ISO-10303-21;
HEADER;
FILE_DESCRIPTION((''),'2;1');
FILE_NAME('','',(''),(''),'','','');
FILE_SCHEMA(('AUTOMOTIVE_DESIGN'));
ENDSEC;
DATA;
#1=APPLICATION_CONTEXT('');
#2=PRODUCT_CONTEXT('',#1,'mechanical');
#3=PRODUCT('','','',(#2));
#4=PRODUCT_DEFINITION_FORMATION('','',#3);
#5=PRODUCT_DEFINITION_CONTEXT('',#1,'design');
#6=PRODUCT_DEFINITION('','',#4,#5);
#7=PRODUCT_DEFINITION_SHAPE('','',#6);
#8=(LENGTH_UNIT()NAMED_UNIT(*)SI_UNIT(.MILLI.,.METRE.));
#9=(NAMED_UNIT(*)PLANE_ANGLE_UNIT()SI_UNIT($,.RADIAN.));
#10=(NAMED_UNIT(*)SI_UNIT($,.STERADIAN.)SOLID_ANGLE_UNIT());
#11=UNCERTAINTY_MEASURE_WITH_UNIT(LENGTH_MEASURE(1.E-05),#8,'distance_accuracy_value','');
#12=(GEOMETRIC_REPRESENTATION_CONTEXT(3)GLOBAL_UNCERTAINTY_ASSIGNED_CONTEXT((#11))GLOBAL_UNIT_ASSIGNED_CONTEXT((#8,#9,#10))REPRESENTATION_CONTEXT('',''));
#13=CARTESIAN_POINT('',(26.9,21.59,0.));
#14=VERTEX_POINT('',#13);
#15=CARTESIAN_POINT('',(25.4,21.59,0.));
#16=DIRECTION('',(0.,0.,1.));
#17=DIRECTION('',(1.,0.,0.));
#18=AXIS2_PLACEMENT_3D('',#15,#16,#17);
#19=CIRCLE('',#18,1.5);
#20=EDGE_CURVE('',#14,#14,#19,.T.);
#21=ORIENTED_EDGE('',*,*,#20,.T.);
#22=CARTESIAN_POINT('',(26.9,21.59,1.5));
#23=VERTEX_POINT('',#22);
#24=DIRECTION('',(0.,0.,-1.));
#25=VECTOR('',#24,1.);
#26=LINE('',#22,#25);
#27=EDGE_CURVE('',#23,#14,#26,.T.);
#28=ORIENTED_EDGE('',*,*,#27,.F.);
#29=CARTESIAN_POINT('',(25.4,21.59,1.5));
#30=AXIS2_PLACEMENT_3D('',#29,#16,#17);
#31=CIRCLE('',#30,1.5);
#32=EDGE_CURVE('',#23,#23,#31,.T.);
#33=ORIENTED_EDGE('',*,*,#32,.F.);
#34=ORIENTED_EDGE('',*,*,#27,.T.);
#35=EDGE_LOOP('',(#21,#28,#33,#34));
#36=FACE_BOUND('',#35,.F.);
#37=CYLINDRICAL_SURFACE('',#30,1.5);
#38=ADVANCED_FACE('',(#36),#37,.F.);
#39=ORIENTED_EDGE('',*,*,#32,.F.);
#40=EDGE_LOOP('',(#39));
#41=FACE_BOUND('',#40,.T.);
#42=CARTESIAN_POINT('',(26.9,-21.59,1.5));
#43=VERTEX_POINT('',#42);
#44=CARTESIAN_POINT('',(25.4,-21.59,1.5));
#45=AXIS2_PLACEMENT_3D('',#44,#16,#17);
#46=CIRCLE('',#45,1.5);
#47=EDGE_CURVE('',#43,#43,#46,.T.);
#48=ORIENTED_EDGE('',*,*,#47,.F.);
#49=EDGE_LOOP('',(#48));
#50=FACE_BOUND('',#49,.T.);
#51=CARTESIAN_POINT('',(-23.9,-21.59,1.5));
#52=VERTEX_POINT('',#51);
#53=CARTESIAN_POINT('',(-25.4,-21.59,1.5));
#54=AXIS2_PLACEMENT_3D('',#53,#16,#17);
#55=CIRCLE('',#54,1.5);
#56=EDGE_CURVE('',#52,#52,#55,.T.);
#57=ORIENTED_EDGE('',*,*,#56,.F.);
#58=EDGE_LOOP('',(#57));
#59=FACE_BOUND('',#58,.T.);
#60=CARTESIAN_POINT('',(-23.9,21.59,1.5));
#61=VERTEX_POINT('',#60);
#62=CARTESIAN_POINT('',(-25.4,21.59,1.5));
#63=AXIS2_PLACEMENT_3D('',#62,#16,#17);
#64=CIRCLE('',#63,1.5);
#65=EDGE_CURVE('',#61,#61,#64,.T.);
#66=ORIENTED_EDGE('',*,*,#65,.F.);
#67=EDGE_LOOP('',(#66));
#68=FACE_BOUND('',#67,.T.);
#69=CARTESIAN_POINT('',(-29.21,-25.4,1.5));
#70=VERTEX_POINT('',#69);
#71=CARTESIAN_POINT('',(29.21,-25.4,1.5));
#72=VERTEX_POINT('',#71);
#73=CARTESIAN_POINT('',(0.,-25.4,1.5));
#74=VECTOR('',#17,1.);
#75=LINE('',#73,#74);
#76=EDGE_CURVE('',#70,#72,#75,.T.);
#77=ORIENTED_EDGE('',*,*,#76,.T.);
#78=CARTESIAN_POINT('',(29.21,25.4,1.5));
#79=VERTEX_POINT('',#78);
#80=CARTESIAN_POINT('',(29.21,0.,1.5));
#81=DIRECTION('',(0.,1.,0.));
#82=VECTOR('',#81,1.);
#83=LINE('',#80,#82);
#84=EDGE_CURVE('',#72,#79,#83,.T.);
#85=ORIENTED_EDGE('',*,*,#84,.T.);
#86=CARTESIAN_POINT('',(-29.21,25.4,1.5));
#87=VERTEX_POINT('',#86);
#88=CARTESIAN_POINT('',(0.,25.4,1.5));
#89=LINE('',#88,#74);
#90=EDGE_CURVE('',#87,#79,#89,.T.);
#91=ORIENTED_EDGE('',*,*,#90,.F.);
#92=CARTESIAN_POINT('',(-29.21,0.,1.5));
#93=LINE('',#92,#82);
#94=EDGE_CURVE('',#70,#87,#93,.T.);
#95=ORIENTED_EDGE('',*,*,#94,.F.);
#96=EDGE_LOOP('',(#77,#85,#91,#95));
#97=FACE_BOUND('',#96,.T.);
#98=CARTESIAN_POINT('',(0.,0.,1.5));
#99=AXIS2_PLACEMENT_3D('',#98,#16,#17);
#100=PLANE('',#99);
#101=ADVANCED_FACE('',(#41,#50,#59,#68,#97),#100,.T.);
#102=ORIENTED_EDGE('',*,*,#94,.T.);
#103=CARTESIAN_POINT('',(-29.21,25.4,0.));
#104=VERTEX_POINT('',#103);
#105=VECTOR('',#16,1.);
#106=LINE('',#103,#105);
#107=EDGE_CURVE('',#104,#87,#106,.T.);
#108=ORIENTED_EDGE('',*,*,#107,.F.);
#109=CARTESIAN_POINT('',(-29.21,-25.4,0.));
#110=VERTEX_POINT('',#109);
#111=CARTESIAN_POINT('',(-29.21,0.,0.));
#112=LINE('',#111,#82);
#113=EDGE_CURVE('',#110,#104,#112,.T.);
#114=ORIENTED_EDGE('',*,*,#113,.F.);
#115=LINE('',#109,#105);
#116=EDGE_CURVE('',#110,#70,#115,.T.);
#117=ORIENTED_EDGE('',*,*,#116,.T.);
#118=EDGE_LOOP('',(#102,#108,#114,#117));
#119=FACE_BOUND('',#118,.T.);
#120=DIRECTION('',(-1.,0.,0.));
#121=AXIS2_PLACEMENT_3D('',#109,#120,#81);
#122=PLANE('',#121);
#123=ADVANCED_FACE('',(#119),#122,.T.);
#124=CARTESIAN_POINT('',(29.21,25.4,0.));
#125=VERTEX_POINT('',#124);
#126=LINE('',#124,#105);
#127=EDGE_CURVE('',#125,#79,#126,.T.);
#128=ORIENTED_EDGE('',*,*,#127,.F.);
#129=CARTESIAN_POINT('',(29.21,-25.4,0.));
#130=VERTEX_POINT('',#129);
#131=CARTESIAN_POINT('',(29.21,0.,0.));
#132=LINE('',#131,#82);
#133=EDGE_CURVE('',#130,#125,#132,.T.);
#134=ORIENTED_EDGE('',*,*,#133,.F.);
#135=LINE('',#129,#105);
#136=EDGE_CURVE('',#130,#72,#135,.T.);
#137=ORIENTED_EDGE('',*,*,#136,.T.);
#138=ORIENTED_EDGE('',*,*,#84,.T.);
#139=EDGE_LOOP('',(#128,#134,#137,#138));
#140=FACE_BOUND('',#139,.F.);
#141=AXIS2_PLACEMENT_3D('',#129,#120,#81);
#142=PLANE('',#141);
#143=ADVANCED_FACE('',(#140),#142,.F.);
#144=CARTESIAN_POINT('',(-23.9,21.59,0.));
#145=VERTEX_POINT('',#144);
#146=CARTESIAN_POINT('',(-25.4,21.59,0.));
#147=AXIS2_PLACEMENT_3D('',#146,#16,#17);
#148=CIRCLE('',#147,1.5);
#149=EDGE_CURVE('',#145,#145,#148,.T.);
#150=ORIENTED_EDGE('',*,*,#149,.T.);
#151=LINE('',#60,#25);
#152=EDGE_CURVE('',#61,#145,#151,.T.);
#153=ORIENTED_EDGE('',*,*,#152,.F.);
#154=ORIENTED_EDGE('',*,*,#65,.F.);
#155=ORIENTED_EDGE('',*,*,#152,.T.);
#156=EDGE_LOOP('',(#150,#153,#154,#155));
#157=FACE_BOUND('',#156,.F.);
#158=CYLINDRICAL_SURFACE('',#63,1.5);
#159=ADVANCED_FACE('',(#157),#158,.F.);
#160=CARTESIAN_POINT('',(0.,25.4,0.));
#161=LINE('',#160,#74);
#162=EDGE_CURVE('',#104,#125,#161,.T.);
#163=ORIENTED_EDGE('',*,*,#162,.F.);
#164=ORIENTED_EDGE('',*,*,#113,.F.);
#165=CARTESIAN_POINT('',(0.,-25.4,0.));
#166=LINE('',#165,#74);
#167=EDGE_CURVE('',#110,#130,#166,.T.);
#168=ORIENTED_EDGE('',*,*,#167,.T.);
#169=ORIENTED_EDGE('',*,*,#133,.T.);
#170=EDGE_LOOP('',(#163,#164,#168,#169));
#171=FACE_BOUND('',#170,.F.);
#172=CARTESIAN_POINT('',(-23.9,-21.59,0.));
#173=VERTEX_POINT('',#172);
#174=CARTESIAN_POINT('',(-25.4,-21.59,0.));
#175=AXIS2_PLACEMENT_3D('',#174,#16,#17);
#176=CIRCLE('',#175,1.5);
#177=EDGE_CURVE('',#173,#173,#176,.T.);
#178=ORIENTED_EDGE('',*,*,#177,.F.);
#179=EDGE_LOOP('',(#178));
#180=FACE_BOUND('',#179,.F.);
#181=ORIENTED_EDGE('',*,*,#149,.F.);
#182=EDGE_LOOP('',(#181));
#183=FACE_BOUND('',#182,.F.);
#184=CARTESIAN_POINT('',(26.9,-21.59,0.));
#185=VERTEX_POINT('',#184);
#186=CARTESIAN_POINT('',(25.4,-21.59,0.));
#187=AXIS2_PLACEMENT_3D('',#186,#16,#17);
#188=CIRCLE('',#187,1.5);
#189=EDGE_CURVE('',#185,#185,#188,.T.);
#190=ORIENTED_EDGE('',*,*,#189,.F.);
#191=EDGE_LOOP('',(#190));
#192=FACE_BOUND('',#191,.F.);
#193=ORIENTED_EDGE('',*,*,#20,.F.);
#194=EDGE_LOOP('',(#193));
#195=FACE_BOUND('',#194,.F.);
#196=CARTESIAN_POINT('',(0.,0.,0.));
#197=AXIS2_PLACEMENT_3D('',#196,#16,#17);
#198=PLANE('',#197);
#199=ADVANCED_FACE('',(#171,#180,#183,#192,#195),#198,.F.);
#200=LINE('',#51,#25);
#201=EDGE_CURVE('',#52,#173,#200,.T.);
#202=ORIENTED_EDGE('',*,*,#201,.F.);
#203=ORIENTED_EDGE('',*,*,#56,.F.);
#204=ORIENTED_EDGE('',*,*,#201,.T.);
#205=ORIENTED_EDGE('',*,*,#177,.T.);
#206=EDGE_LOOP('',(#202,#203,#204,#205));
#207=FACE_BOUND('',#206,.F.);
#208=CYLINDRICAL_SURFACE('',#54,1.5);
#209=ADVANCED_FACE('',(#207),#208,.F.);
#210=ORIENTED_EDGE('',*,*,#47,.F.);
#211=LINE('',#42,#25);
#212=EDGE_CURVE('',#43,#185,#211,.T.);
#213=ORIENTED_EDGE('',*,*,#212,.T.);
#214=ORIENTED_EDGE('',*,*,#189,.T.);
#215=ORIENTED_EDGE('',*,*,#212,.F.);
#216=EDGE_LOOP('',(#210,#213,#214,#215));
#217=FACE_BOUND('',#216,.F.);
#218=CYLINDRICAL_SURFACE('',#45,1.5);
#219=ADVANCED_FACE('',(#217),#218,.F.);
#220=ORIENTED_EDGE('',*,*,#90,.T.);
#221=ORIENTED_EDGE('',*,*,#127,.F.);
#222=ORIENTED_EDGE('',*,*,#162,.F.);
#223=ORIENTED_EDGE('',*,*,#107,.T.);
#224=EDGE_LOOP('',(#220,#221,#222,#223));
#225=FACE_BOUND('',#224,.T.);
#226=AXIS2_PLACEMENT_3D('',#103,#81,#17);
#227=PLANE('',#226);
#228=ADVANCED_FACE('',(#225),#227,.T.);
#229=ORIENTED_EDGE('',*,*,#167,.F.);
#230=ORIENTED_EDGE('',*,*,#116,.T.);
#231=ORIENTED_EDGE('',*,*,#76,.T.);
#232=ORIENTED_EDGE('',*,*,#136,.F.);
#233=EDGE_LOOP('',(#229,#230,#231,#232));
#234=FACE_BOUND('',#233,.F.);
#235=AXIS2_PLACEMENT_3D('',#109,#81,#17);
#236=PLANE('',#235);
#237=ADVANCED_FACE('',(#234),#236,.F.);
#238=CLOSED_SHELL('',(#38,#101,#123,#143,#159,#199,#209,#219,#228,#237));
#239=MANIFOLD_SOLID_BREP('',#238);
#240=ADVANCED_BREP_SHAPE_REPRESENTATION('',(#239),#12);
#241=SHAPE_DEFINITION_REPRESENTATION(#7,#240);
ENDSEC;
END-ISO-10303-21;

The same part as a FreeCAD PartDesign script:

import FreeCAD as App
import Part
import Sketcher

V = App.Vector
Q = App.Units.Quantity

doc = App.newDocument("Part")
body = doc.addObject("PartDesign::Body", "Body")

sketch1 = body.newObject("Sketcher::SketchObject", "Sketch")
sketch1.AttachmentSupport = (doc.getObject("XY_Plane"), [""])
sketch1.MapMode = "FlatFace"
sketch1.addGeometry(Part.LineSegment(V(-29.21, 25.4, 0), V(-29.21, -25.4, 0)), False)
sketch1.addGeometry(Part.LineSegment(V(-29.21, -25.4, 0), V(29.21, -25.4, 0)), False)
sketch1.addGeometry(Part.LineSegment(V(29.21, -25.4, 0), V(29.21, 25.4, 0)), False)
sketch1.addGeometry(Part.LineSegment(V(29.21, 25.4, 0), V(-29.21, 25.4, 0)), False)
sketch1.addConstraint(Sketcher.Constraint("Coincident", 0, 2, 1, 1))
sketch1.addConstraint(Sketcher.Constraint("Coincident", 1, 2, 2, 1))
sketch1.addConstraint(Sketcher.Constraint("Coincident", 2, 2, 3, 1))
sketch1.addConstraint(Sketcher.Constraint("Coincident", 3, 2, 0, 1))
sketch1.addConstraint(Sketcher.Constraint("Vertical", 0))
sketch1.addConstraint(Sketcher.Constraint("Horizontal", 1))
sketch1.addConstraint(Sketcher.Constraint("Vertical", 2))
sketch1.addConstraint(Sketcher.Constraint("Horizontal", 3))
sketch1.addConstraint(Sketcher.Constraint("Symmetric", 0, 2, 2, 2, -1, 1))
sketch1.addConstraint(Sketcher.Constraint("DistanceY", 0, 2, 0, 1, Q("50.8 mm")))
sketch1.addConstraint(Sketcher.Constraint("DistanceX", 1, 1, 1, 2, Q("58.42 mm")))
pad1 = body.newObject("PartDesign::Pad", "Pad")
pad1.Profile = sketch1
pad1.Length = 1.5

sketch2 = body.newObject("Sketcher::SketchObject", "Sketch001")
sketch2.AttachmentSupport = (doc.getObject("XY_Plane"), [""])
sketch2.MapMode = "FlatFace"
sketch2.AttachmentOffset = App.Placement(V(0, 0, 1.5), App.Rotation())
sketch2.addGeometry(Part.Circle(V(-25.4, 21.59, 0), V(0, 0, 1), 1.5), False)
sketch2.addGeometry(Part.Circle(V(25.4, 21.59, 0), V(0, 0, 1), 1.5), False)
sketch2.addGeometry(Part.Circle(V(25.4, -21.59, 0), V(0, 0, 1), 1.5), False)
sketch2.addGeometry(Part.Circle(V(-25.4, -21.59, 0), V(0, 0, 1), 1.5), False)
sketch2.addConstraint(Sketcher.Constraint("Equal", 0, 1))
sketch2.addConstraint(Sketcher.Constraint("Equal", 1, 2))
sketch2.addConstraint(Sketcher.Constraint("Equal", 2, 3))
sketch2.addConstraint(Sketcher.Constraint("Symmetric", 0, 3, 2, 3, -1, 1))
sketch2.addConstraint(Sketcher.Constraint("Symmetric", 1, 3, 3, 3, -1, 1))
sketch2.addConstraint(Sketcher.Constraint("Symmetric", 0, 3, 1, 3, -2))
sketch2.addConstraint(Sketcher.Constraint("Diameter", 0, Q("3 mm")))
sketch2.addConstraint(Sketcher.Constraint("DistanceX", 0, 3, -1, 1, Q("25.4 mm")))
sketch2.addConstraint(Sketcher.Constraint("DistanceY", -1, 1, 0, 3, Q("21.59 mm")))
pocket1 = body.newObject("PartDesign::Pocket", "Pocket")
pocket1.Profile = sketch2
pocket1.Length = 5

doc.recompute()
